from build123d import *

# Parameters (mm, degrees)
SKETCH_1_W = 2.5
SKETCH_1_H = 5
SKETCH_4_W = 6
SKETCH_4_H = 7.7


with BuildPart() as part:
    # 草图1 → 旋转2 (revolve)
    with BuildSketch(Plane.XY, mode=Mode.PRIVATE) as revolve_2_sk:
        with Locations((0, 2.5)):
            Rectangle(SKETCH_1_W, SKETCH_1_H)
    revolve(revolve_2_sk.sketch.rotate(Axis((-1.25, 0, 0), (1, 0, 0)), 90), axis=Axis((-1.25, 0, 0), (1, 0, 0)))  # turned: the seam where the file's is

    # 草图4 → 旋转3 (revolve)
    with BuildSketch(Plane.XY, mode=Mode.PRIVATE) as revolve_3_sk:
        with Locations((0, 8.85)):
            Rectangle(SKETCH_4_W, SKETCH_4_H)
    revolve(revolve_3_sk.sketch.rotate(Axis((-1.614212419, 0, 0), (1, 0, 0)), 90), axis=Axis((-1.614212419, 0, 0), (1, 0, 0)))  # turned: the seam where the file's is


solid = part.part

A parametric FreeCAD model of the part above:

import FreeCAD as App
import Part
import Sketcher
from FreeCAD import Vector
Q = App.Units.Quantity


def add_polygon(sketch, points):
    """Adds a closed chain of lines whose ends are joined by coincident constraints."""
    first, n = sketch.GeometryCount, len(points)
    for a, b in zip(points, points[1:] + points[:1]):
        sketch.addGeometry(Part.LineSegment(App.Vector(*a, 0), App.Vector(*b, 0)), False)
    for i in range(n):
        sketch.addConstraint(Sketcher.Constraint("Coincident", first + i, 2, first + (i + 1) % n, 1))

doc = App.newDocument("Part")
body = doc.addObject("PartDesign::Body", "Body")

# Sketch on XY plane
sketch1 = body.newObject("Sketcher::SketchObject", "Sketch")
sketch1.AttachmentSupport = (doc.getObject("XY_Plane"), [""])
sketch1.MapMode = "FlatFace"
add_polygon(sketch1, [(-1.2, 5), (-1.2, 0), (1.2, 0), (1.2, 5)])  # lines 0-3
sketch1.addConstraint([
    Sketcher.Constraint("Vertical", 0),
    Sketcher.Constraint("Horizontal", 1),
    Sketcher.Constraint("Vertical", 2),
    Sketcher.Constraint("Horizontal", 3),
    Sketcher.Constraint("Symmetric", 0, 2, 1, 2, -1, 1),
    Sketcher.Constraint("DistanceY", 0, 2, 0, 1, Q("5 mm")),
    Sketcher.Constraint("DistanceX", 1, 1, 1, 2, Q("2.5 mm")),
])
revolution = body.newObject("PartDesign::Revolution", "Revolution")
revolution.Profile = sketch1
revolution.ReferenceAxis = (sketch1, ["H_Axis"])
revolution.Angle = 360

# Sketch on XY plane
sketch2 = body.newObject("Sketcher::SketchObject", "Sketch001")
sketch2.AttachmentSupport = (doc.getObject("XY_Plane"), [""])
sketch2.MapMode = "FlatFace"
add_polygon(sketch2, [(-3, 13), (-3, 5), (3, 5), (3, 13)])  # lines 0-3
sketch2.addConstraint([
    Sketcher.Constraint("Vertical", 0),
    Sketcher.Constraint("Horizontal", 1),
    Sketcher.Constraint("Vertical", 2),
    Sketcher.Constraint("Horizontal", 3),
    Sketcher.Constraint("DistanceX", 1, 1, 1, 2, Q("6 mm")),
    Sketcher.Constraint("DistanceY", 0, 2, 0, 1, Q("7.7 mm")),
    Sketcher.Constraint("DistanceX", 0, 2, -1, 1, Q("3 mm")),
    Sketcher.Constraint("DistanceY", -1, 1, 0, 2, Q("5 mm")),
])
revolution2 = body.newObject("PartDesign::Revolution", "Revolution001")
revolution2.Profile = sketch2
revolution2.ReferenceAxis = (sketch2, ["H_Axis"])
revolution2.Angle = 360

doc.recompute()
